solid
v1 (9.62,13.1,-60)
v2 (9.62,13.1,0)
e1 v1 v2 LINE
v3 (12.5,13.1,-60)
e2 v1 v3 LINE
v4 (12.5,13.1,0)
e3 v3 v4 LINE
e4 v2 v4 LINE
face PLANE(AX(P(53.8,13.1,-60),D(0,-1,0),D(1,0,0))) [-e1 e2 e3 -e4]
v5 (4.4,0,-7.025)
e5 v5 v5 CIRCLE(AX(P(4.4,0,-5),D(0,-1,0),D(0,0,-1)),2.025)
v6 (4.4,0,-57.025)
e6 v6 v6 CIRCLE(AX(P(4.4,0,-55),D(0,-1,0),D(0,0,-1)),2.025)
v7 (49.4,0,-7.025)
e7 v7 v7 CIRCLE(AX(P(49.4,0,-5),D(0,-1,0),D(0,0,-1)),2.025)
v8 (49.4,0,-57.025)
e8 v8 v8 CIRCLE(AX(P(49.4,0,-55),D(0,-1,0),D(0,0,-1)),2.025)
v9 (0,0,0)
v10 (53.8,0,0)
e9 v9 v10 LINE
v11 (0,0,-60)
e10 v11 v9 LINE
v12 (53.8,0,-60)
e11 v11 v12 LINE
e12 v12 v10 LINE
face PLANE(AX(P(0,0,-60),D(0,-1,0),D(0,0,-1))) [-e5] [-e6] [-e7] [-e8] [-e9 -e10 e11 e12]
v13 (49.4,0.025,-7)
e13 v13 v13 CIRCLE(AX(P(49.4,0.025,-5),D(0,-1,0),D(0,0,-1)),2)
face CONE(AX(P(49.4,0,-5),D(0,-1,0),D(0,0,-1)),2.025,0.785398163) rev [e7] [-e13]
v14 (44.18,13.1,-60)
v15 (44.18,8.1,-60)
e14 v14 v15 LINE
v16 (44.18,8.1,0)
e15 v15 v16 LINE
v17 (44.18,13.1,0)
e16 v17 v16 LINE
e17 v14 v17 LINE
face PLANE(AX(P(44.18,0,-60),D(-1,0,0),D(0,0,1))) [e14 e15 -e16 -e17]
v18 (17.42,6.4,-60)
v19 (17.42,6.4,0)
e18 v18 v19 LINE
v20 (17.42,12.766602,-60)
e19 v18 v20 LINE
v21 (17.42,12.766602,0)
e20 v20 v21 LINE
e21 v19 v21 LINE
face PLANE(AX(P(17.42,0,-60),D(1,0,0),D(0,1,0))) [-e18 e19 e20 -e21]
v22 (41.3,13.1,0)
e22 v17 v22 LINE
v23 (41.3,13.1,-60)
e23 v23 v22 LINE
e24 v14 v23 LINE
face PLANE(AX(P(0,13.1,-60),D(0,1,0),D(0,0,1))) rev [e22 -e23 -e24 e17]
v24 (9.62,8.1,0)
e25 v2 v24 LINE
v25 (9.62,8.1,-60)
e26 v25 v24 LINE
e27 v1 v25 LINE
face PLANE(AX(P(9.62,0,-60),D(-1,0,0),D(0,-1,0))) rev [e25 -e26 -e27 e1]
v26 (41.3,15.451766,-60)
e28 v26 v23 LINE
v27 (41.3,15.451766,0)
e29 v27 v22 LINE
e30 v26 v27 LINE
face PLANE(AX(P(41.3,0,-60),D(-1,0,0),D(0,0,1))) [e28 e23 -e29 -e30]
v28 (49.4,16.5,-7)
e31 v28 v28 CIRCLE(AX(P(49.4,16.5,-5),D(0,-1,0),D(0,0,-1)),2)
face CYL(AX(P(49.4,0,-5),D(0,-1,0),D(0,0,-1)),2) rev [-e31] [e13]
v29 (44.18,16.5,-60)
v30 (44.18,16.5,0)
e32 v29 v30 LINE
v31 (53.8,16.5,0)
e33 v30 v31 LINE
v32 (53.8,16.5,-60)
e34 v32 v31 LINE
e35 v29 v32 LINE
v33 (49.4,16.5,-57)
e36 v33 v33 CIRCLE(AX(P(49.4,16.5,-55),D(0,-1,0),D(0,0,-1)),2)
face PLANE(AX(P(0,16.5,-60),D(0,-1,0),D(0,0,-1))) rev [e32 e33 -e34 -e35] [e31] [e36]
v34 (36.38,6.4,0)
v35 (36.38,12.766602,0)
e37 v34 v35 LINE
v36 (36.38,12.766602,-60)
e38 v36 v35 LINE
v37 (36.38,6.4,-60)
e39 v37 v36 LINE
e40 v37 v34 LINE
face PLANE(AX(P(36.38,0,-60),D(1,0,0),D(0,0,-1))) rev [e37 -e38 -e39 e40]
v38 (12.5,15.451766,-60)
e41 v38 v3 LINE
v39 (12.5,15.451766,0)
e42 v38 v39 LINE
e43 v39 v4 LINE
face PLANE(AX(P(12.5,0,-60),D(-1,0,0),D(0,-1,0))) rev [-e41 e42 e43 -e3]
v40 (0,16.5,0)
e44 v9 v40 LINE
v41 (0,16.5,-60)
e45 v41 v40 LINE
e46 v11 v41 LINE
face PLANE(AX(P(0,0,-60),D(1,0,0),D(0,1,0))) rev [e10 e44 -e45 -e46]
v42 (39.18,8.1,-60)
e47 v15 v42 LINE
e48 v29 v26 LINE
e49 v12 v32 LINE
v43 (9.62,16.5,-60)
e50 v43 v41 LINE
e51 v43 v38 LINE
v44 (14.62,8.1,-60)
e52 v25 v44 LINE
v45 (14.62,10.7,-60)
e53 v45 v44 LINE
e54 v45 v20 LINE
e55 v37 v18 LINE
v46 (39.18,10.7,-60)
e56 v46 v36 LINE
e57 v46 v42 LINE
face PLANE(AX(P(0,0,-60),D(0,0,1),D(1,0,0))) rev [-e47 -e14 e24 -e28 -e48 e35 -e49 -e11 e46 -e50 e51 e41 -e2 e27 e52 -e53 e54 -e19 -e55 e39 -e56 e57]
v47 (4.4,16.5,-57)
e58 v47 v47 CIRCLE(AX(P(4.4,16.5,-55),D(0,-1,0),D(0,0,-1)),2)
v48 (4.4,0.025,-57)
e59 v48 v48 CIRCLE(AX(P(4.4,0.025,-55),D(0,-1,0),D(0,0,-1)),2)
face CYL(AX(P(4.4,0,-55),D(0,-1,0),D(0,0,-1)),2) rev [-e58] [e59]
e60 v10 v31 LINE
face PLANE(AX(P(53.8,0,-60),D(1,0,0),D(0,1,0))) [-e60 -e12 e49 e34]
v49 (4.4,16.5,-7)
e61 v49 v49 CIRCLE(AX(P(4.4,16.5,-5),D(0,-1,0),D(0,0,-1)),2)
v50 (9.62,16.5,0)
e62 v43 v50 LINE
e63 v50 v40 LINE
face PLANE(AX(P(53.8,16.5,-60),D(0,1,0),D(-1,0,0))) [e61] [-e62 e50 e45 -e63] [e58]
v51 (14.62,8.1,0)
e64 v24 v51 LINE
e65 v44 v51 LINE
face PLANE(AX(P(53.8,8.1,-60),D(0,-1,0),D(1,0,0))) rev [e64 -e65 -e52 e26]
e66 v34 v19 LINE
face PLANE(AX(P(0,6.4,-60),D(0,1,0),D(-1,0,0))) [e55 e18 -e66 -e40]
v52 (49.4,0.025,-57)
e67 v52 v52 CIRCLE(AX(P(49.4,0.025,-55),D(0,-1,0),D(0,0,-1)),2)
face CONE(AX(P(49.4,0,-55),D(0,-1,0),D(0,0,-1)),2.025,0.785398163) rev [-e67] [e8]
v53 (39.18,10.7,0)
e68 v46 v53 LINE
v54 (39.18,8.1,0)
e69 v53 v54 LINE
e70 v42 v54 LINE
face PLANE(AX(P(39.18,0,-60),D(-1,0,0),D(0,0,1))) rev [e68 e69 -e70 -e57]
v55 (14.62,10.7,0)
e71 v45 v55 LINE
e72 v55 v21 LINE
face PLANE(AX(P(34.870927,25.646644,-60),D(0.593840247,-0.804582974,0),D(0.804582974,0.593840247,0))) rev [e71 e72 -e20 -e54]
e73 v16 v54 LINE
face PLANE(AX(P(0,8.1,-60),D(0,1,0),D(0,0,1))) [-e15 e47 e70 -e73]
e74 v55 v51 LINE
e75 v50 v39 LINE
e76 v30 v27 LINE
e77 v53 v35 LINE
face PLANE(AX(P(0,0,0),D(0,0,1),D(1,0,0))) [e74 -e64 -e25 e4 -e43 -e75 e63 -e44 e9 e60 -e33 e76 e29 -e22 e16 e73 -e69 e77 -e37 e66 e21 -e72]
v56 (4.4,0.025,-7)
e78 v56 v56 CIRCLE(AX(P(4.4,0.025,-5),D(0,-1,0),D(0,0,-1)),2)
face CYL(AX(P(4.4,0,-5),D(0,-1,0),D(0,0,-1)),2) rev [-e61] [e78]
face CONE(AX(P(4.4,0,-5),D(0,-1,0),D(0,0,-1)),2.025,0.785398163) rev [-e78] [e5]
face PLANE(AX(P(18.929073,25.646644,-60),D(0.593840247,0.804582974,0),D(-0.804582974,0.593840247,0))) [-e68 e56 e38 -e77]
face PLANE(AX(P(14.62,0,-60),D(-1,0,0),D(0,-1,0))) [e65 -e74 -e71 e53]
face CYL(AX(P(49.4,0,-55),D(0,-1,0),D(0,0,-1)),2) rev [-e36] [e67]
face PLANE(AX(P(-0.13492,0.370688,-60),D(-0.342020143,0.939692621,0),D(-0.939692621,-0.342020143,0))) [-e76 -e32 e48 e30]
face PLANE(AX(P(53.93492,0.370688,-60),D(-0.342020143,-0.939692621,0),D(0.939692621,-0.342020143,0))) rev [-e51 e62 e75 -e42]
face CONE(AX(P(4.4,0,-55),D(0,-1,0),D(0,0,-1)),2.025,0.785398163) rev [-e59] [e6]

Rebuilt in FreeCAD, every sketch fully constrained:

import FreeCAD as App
import Part
import Sketcher

V = App.Vector
Q = App.Units.Quantity

doc = App.newDocument("Part")
body = doc.addObject("PartDesign::Body", "Body")

sketch1 = body.newObject("Sketcher::SketchObject", "Sketch")
sketch1.AttachmentSupport = (doc.getObject("XY_Plane"), [""])
sketch1.MapMode = "FlatFace"
sketch1.addGeometry([
    Part.LineSegment(V(36.4, 6.4, 0), V(26.9, 6.4, 0)),
    Part.LineSegment(V(26.9, 6.4, 0), V(26.9, 0, 0)),
    Part.LineSegment(V(26.9, 0, 0), V(53.8, 0, 0)),
    Part.LineSegment(V(53.8, 0, 0), V(53.8, 16.5, 0)),
    Part.LineSegment(V(53.8, 16.5, 0), V(44.2, 16.5, 0)),
    Part.LineSegment(V(44.2, 16.5, 0), V(41.3, 15.5, 0)),
    Part.LineSegment(V(41.3, 15.5, 0), V(41.3, 13.1, 0)),
    Part.LineSegment(V(41.3, 13.1, 0), V(44.2, 13.1, 0)),
    Part.LineSegment(V(44.2, 13.1, 0), V(44.2, 8.1, 0)),
    Part.LineSegment(V(44.2, 8.1, 0), V(39.2, 8.1, 0)),
    Part.LineSegment(V(39.2, 8.1, 0), V(39.2, 10.7, 0)),
    Part.LineSegment(V(39.2, 10.7, 0), V(36.4, 12.8, 0)),
    Part.LineSegment(V(36.4, 12.8, 0), V(36.4, 6.4, 0)),
], False)
sketch1.addConstraint([
    Sketcher.Constraint("Coincident", 0, 2, 1, 1),
    Sketcher.Constraint("Coincident", 1, 2, 2, 1),
    Sketcher.Constraint("Coincident", 2, 2, 3, 1),
    Sketcher.Constraint("Coincident", 3, 2, 4, 1),
    Sketcher.Constraint("Coincident", 4, 2, 5, 1),
    Sketcher.Constraint("Coincident", 5, 2, 6, 1),
    Sketcher.Constraint("Coincident", 6, 2, 7, 1),
    Sketcher.Constraint("Coincident", 7, 2, 8, 1),
    Sketcher.Constraint("Coincident", 8, 2, 9, 1),
    Sketcher.Constraint("Coincident", 9, 2, 10, 1),
    Sketcher.Constraint("Coincident", 10, 2, 11, 1),
    Sketcher.Constraint("Coincident", 11, 2, 12, 1),
    Sketcher.Constraint("Coincident", 12, 2, 0, 1),
    Sketcher.Constraint("Horizontal", 0),
    Sketcher.Constraint("Vertical", 1),
    Sketcher.Constraint("Horizontal", 2),
    Sketcher.Constraint("Vertical", 3),
    Sketcher.Constraint("Horizontal", 4),
    Sketcher.Constraint("Vertical", 6),
    Sketcher.Constraint("Horizontal", 7),
    Sketcher.Constraint("Vertical", 8),
    Sketcher.Constraint("Horizontal", 9),
    Sketcher.Constraint("Vertical", 10),
    Sketcher.Constraint("Vertical", 12),
    Sketcher.Constraint("PointOnObject", 1, 2, -1),
    Sketcher.Constraint("Vertical", 4, 2, 7, 2),
    Sketcher.Constraint("Equal", 9, 8),
    Sketcher.Constraint("DistanceX", 9, 2, 9, 1, Q("5 mm")),
    Sketcher.Constraint("Angle", 5, Q("-160 deg")),
    Sketcher.Constraint("DistanceX", 2, 1, 2, 2, Q("26.9 mm")),
    Sketcher.Constraint("DistanceY", 1, 2, 1, 1, Q("6.4 mm")),
    Sketcher.Constraint("DistanceY", 3, 1, 3, 2, Q("16.5 mm")),
    Sketcher.Constraint("DistanceY", 10, 1, 10, 2, Q("2.6 mm")),
    Sketcher.Constraint("DistanceX", 0, 2, 0, 1, Q("9.48 mm")),
    Sketcher.Constraint("DistanceX", 4, 2, 4, 1, Q("9.62 mm")),
    Sketcher.Constraint("DistanceX", 7, 1, 7, 2, Q("2.88 mm")),
    Sketcher.Constraint("DistanceX", -1, 1, 0, 2, Q("26.9 mm")),
    Sketcher.Constraint("DistanceY", -1, 1, 6, 2, Q("13.1 mm")),
    Sketcher.Constraint("Angle", 11, Q("143.57 deg")),
])
pad1 = body.newObject("PartDesign::Pad", "Pad")
pad1.Profile = sketch1
pad1.Length = 60
pad1.Reversed = True
doc.recompute()

datumplane = body.newObject("PartDesign::Plane", "DatumPlane")
datumplane.AttachmentSupport = (doc.getObject("YZ_Plane"), [""])
datumplane.MapMode = "FlatFace"
datumplane.AttachmentOffset = App.Placement(V(0, 0, 26.9), App.Rotation())
mirrored = body.newObject("PartDesign::Mirrored", "Mirrored")
mirrored.Originals = [pad1]
mirrored.MirrorPlane = (datumplane, [""])
body.Tip = mirrored

sketch2 = body.newObject("Sketcher::SketchObject", "Sketch001")
sketch2.AttachmentSupport = (doc.getObject("XZ_Plane"), [""])
sketch2.MapMode = "FlatFace"
sketch2.addGeometry([
    Part.Circle(V(49.4, -55, 0), V(0, 0, 1), 2),
    Part.Circle(V(4.4, -55, 0), V(0, 0, 1), 2),
    Part.Circle(V(4.4, -5, 0), V(0, 0, 1), 2),
    Part.Circle(V(49.4, -5, 0), V(0, 0, 1), 2),
], False)
sketch2.addConstraint([
    Sketcher.Constraint("Equal", 0, 1),
    Sketcher.Constraint("Equal", 1, 2),
    Sketcher.Constraint("Equal", 2, 3),
    Sketcher.Constraint("Horizontal", 0, 3, 1, 3),
    Sketcher.Constraint("Horizontal", 2, 3, 3, 3),
    Sketcher.Constraint("Vertical", 1, 3, 2, 3),
    Sketcher.Constraint("Vertical", 0, 3, 3, 3),
    Sketcher.Constraint("Diameter", 0, Q("4 mm")),
    Sketcher.Constraint("DistanceY", 0, 3, -1, 1, Q("55 mm")),
    Sketcher.Constraint("DistanceY", 2, 3, -1, 1, Q("5 mm")),
    Sketcher.Constraint("DistanceX", 1, 3, 0, 3, Q("45 mm")),
    Sketcher.Constraint("DistanceX", -1, 1, 0, 3, Q("49.4 mm")),
])
doc.recompute()
hole = body.newObject("PartDesign::Hole", "Hole")
hole.Profile = sketch2
hole.ThreadType = "None"
hole.Diameter = 4
hole.DepthType = "ThroughAll"
hole.HoleCutType = "Countersink"
hole.HoleCutDiameter = 4.05
hole.HoleCutCountersinkAngle = 90

doc.recompute()
